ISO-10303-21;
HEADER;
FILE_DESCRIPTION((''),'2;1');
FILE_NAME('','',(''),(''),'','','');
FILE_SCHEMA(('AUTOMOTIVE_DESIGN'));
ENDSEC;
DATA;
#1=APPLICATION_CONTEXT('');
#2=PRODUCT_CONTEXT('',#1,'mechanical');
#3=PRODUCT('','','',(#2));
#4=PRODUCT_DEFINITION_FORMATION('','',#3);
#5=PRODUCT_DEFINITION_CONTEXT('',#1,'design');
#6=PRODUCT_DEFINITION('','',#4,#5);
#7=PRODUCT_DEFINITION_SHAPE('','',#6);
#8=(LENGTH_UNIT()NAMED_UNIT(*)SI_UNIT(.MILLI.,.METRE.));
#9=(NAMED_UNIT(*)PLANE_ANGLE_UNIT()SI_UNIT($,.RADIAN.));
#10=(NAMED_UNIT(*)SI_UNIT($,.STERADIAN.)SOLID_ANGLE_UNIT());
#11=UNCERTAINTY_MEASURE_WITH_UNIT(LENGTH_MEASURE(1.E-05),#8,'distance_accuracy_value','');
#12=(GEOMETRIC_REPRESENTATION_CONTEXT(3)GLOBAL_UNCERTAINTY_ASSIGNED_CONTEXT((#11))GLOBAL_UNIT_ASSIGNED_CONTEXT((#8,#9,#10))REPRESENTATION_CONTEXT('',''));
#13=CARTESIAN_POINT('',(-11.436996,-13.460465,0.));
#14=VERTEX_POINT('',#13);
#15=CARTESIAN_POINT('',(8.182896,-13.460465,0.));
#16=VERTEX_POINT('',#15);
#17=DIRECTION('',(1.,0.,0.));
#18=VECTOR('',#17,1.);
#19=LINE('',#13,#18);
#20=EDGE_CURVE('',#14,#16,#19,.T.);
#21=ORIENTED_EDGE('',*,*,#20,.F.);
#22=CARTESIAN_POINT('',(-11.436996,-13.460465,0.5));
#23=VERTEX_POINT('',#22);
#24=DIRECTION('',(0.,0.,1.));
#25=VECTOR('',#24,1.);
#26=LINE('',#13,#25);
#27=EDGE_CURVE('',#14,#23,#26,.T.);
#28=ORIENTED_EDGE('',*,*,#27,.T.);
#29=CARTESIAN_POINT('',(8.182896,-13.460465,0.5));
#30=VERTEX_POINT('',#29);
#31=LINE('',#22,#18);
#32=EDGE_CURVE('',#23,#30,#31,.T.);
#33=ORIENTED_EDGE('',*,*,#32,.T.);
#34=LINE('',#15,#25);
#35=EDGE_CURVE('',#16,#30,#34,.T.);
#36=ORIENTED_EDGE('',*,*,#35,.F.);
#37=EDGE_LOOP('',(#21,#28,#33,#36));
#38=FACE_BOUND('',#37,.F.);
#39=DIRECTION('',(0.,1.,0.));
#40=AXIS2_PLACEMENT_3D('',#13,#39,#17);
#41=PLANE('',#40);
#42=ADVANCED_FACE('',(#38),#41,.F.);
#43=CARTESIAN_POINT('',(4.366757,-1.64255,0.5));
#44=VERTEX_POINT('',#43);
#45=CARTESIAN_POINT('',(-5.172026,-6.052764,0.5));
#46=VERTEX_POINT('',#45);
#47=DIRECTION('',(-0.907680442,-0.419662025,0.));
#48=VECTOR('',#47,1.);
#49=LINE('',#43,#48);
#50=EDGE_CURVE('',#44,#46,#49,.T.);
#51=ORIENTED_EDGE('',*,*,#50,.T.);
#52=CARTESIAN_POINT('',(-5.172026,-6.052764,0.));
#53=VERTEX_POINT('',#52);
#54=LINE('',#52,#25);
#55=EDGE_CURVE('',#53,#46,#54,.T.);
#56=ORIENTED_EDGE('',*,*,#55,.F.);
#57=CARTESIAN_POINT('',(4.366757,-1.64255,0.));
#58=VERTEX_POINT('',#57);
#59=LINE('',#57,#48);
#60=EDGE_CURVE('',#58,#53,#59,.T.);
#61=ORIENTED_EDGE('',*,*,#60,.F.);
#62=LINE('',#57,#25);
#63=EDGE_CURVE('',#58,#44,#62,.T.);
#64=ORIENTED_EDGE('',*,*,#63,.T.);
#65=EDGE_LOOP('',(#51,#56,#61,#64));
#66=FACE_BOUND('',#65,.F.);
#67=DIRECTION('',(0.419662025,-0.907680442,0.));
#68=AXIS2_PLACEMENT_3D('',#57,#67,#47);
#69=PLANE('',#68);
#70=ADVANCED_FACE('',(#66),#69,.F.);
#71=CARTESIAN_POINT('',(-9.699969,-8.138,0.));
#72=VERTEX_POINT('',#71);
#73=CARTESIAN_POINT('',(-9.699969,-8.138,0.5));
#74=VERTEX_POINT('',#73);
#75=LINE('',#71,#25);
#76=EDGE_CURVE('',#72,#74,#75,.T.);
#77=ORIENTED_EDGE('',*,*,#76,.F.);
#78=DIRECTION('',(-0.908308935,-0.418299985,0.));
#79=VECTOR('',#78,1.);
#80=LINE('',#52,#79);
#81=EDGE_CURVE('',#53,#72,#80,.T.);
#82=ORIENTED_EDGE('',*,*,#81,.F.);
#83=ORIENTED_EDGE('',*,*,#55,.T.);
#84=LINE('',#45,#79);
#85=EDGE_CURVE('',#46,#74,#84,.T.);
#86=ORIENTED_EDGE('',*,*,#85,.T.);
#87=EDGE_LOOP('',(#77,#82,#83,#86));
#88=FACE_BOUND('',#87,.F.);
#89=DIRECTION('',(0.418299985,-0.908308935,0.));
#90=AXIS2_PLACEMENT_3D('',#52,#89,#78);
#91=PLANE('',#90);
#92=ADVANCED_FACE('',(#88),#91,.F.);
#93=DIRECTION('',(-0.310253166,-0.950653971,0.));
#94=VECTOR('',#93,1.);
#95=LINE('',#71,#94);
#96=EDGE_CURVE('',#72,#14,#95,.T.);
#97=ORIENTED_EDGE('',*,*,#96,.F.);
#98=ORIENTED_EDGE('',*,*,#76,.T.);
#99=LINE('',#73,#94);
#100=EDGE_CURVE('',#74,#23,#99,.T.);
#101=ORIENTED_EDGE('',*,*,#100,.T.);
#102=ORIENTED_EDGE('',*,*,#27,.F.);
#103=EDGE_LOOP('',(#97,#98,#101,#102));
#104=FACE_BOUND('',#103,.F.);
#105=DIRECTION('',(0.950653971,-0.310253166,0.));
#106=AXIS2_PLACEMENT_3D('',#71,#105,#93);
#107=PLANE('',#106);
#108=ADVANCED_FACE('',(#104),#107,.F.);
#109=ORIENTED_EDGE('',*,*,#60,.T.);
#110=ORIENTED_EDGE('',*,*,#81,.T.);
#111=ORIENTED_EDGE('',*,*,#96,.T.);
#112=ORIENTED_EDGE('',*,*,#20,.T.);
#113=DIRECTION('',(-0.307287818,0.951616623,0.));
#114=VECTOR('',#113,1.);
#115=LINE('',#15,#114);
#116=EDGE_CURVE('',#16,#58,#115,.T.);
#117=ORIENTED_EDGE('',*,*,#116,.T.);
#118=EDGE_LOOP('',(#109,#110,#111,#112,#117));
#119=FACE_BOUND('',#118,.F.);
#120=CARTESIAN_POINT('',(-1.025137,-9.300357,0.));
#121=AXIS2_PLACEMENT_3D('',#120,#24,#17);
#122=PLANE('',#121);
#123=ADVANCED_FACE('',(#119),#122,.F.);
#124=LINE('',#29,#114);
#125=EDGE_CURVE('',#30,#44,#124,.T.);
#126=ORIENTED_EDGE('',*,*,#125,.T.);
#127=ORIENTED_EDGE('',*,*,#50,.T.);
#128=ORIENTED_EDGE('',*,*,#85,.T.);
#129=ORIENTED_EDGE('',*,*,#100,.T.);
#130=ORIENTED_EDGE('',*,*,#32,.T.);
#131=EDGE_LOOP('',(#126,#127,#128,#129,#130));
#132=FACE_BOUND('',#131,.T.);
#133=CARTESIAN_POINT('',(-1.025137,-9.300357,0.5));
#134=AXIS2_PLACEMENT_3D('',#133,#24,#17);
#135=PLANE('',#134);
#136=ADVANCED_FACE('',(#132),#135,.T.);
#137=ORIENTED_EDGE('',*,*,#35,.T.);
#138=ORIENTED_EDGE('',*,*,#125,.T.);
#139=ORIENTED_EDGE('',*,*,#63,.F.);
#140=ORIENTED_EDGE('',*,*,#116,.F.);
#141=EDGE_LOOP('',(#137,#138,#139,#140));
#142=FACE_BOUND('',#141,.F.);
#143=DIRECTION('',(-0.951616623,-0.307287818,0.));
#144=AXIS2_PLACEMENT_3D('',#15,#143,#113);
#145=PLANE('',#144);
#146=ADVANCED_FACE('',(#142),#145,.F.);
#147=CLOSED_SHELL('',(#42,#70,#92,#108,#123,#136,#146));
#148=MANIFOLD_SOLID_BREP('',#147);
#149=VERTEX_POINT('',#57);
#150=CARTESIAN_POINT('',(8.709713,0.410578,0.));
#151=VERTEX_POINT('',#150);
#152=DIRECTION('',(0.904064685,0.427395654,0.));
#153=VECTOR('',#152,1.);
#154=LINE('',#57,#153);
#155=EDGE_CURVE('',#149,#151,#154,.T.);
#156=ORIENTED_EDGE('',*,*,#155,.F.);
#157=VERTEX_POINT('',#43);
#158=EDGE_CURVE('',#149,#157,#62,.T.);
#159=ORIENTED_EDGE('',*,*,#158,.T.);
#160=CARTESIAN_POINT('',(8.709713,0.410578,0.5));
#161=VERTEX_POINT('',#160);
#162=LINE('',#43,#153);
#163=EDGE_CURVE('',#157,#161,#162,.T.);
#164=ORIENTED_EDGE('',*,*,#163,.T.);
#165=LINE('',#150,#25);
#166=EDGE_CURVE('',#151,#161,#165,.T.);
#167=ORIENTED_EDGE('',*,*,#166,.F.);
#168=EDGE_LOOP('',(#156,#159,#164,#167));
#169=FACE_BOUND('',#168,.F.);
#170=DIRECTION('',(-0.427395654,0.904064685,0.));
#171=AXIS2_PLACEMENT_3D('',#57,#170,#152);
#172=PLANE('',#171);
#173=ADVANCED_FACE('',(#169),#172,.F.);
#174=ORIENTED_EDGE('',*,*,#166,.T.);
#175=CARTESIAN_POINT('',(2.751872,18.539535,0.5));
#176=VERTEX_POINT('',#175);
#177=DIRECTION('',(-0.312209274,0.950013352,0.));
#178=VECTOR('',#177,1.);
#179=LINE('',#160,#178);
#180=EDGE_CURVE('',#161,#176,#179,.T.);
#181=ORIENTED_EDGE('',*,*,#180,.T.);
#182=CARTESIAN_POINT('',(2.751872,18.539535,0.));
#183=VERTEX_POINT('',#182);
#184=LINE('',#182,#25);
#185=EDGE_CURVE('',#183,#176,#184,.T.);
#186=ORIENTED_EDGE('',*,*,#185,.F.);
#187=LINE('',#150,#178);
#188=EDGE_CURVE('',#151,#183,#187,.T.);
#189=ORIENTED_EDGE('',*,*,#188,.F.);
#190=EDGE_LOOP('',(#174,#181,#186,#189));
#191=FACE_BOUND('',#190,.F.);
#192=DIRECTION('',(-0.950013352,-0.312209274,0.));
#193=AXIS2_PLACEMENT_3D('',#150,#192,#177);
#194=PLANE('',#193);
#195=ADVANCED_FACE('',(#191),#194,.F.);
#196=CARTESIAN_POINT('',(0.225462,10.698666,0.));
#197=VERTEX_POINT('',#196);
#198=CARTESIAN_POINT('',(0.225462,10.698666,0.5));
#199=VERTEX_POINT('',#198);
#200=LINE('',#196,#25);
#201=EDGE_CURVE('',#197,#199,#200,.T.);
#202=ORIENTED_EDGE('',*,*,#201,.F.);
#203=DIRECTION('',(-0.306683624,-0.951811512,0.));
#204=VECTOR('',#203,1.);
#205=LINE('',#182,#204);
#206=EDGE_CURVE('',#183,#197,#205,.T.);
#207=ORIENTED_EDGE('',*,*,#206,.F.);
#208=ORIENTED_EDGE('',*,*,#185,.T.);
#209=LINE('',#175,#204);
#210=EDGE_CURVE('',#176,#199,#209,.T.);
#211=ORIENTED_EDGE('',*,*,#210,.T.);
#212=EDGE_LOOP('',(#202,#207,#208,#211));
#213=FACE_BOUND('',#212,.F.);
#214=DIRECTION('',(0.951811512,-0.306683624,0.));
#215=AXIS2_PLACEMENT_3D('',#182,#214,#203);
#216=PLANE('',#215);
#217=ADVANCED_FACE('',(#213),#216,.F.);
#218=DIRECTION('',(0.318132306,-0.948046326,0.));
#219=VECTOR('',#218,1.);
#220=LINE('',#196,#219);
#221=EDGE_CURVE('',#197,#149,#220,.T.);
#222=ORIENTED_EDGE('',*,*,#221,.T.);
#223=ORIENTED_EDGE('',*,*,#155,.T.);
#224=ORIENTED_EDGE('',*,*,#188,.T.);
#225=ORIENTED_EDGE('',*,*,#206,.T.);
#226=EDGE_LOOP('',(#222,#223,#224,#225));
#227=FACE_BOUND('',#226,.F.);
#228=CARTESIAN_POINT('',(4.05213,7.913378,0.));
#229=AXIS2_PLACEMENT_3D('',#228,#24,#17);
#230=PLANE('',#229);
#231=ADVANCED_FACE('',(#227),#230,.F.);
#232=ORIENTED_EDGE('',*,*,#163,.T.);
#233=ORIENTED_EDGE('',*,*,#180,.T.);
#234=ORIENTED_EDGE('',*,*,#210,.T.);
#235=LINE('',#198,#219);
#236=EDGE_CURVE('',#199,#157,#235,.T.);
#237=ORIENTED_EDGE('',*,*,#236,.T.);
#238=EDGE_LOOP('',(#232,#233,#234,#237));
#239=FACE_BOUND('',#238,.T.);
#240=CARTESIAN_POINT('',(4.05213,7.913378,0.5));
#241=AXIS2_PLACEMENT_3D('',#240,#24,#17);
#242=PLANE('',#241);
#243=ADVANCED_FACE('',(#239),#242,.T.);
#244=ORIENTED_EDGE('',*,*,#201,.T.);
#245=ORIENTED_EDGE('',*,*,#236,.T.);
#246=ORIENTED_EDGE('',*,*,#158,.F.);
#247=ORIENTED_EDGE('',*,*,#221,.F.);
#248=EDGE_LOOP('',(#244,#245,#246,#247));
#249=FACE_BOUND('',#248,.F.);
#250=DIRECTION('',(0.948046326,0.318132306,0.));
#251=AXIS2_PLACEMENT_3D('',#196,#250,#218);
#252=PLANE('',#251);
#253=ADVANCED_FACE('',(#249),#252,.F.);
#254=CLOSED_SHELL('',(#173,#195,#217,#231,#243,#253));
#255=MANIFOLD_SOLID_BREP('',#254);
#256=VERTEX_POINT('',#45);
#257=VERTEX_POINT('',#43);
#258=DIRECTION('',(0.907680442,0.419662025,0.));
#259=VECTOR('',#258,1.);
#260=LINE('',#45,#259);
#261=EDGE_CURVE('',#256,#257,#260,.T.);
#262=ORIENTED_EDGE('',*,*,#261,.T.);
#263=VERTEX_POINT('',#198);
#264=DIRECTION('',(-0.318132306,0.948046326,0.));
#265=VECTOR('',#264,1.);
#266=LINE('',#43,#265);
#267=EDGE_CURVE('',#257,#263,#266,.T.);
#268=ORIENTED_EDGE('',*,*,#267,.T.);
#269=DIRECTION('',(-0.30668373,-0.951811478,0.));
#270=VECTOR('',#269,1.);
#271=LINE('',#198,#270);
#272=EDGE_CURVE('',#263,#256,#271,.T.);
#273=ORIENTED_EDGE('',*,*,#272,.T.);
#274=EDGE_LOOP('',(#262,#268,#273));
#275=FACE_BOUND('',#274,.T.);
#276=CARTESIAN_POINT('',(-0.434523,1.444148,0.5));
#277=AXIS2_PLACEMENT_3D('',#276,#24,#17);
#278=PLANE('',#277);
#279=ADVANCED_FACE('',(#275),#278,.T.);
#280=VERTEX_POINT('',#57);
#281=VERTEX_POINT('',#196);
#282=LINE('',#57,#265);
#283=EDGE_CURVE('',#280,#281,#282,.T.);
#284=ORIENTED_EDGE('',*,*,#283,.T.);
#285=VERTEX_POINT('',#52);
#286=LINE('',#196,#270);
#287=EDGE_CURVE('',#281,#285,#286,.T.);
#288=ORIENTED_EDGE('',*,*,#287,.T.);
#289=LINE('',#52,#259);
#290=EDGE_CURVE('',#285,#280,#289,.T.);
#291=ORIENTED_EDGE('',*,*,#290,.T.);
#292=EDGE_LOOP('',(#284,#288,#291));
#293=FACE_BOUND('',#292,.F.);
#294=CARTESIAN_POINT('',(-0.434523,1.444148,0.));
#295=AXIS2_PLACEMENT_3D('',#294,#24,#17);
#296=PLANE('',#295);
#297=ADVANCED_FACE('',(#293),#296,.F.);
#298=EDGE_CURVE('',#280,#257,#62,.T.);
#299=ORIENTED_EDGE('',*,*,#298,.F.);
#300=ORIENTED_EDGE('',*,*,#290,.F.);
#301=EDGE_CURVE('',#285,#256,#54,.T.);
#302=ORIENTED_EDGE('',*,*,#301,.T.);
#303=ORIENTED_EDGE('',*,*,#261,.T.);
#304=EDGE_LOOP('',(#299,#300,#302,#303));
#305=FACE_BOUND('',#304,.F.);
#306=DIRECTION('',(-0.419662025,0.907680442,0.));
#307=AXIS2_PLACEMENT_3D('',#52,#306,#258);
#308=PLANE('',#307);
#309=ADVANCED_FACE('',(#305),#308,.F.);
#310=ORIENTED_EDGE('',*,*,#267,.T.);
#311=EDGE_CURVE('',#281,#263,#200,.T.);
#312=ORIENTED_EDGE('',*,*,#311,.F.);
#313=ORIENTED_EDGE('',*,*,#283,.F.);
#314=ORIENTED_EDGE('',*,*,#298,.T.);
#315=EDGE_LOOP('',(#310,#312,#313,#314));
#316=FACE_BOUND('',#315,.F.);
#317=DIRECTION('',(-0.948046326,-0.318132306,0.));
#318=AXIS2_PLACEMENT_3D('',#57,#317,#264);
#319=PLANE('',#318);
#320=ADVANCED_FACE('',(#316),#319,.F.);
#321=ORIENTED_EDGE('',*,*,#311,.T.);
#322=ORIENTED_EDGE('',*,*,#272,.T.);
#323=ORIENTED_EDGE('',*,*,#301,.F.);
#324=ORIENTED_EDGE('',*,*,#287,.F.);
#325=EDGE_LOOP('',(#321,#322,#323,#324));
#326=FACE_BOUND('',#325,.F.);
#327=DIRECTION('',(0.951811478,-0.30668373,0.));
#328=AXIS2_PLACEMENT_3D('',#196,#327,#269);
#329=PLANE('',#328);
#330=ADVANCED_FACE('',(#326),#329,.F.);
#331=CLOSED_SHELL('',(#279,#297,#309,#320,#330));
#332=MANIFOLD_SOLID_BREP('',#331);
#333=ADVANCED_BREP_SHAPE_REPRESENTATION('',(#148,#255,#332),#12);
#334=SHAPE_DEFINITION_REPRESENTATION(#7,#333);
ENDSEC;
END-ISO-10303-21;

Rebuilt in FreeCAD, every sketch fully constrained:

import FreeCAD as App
import Part
import Sketcher

V = App.Vector
Q = App.Units.Quantity


def add_polygon(sketch, points):
    """Adds a closed chain of lines whose ends are joined by coincident constraints."""
    first, n = sketch.GeometryCount, len(points)
    for a, b in zip(points, points[1:] + points[:1]):
        sketch.addGeometry(Part.LineSegment(App.Vector(*a, 0), App.Vector(*b, 0)), False)
    for i in range(n):
        sketch.addConstraint(Sketcher.Constraint("Coincident", first + i, 2, first + (i + 1) % n, 1))

doc = App.newDocument("Part")
body = doc.addObject("PartDesign::Body", "Body")

# Sketch on XY plane
sketch1 = doc.addObject("Sketcher::SketchObject", "Sketch")
body.addObject(sketch1)
sketch1.AttachmentSupport = (doc.XY_Plane, [""])
sketch1.MapMode = "FlatFace"
add_polygon(sketch1, [(8.709713, 0.410578), (2.751872, 18.539535), (0.225462, 10.698666), (4.366757, -1.64255)])  # lines 0-3
sketch1.addConstraint(Sketcher.Constraint("Angle", 2, Q("-71.449988 deg")))
sketch1.addConstraint(Sketcher.Constraint("Distance", 3, 4.803811))
sketch1.addConstraint(Sketcher.Constraint("DistanceY", 2, 2, -1, 1, 1.64255))
sketch1.addConstraint(Sketcher.Constraint("DistanceX", 1, 2, 0, 2, 2.52641))
sketch1.addConstraint(Sketcher.Constraint("DistanceY", 1, 2, 0, 2, 7.840869))
sketch1.addConstraint(Sketcher.Constraint("DistanceY", 2, 2, 3, 2, 2.053128))
sketch1.addConstraint(Sketcher.Constraint("DistanceX", 1, 2, 3, 2, 8.484251))
sketch1.addConstraint(Sketcher.Constraint("DistanceX", -1, 1, 0, 2, 2.751872))
pad1 = doc.addObject("PartDesign::Pad", "Pad")
body.addObject(pad1)
pad1.Profile = sketch1
pad1.Length = 0.5
body2 = doc.addObject("PartDesign::Body", "Body001")

# Sketch on XY plane
sketch2 = doc.addObject("Sketcher::SketchObject", "Sketch001")
body2.addObject(sketch2)
sketch2.AttachmentSupport = (doc.getObject("XY_Plane001"), [""])
sketch2.MapMode = "FlatFace"
add_polygon(sketch2, [(4.366757, -1.64255), (0.225462, 10.698666), (-5.172026, -6.052764)])  # lines 0-2
sketch2.addConstraint(Sketcher.Constraint("Angle", 0, Q("108.550012 deg")))
sketch2.addConstraint(Sketcher.Constraint("DistanceY", 2, 2, -1, 1, 1.64255))
sketch2.addConstraint(Sketcher.Constraint("DistanceY", 1, 2, 0, 2, 16.75143))
sketch2.addConstraint(Sketcher.Constraint("Distance", 0, 13.017524))
sketch2.addConstraint(Sketcher.Constraint("Distance", 1, 17.599525))
sketch2.addConstraint(Sketcher.Constraint("DistanceX", -1, 1, 0, 2, 0.225462))
pad2 = doc.addObject("PartDesign::Pad", "Pad001")
body2.addObject(pad2)
pad2.Profile = sketch2
pad2.Length = 0.5
body3 = doc.addObject("PartDesign::Body", "Body002")

# Sketch on XY plane
sketch3 = doc.addObject("Sketcher::SketchObject", "Sketch002")
body3.addObject(sketch3)
sketch3.AttachmentSupport = (doc.getObject("XY_Plane002"), [""])
sketch3.MapMode = "FlatFace"
add_polygon(sketch3, [(4.366757, -1.64255), (-5.172026, -6.052764), (-9.699969, -8.138), (-11.436996, -13.460465), (8.182896, -13.460465)])  # lines 0-4
sketch3.addConstraint(Sketcher.Constraint("Horizontal", 3))
sketch3.addConstraint(Sketcher.Constraint("DistanceY", 1, 2, -1, 1, 8.138))
sketch3.addConstraint(Sketcher.Constraint("DistanceX", 3, 1, 3, 2, 19.619892))
sketch3.addConstraint(Sketcher.Constraint("DistanceY", 2, 2, 0, 2, 7.407701))
sketch3.addConstraint(Sketcher.Constraint("Distance", 2, 5.598741))
sketch3.addConstraint(Sketcher.Constraint("DistanceX", 1, 2, -1, 1, 9.699969))
sketch3.addConstraint(Sketcher.Constraint("DistanceY", 4, 2, -1, 1, 1.64255))
sketch3.addConstraint(Sketcher.Constraint("DistanceX", 2, 2, 0, 2, 6.26497))
sketch3.addConstraint(Sketcher.Constraint("DistanceX", 4, 2, 3, 2, 3.816139))
sketch3.addConstraint(Sketcher.Constraint("Distance", 0, 10.508966))
pad3 = doc.addObject("PartDesign::Pad", "Pad002")
body3.addObject(pad3)
pad3.Profile = sketch3
pad3.Length = 0.5

doc.recompute()
